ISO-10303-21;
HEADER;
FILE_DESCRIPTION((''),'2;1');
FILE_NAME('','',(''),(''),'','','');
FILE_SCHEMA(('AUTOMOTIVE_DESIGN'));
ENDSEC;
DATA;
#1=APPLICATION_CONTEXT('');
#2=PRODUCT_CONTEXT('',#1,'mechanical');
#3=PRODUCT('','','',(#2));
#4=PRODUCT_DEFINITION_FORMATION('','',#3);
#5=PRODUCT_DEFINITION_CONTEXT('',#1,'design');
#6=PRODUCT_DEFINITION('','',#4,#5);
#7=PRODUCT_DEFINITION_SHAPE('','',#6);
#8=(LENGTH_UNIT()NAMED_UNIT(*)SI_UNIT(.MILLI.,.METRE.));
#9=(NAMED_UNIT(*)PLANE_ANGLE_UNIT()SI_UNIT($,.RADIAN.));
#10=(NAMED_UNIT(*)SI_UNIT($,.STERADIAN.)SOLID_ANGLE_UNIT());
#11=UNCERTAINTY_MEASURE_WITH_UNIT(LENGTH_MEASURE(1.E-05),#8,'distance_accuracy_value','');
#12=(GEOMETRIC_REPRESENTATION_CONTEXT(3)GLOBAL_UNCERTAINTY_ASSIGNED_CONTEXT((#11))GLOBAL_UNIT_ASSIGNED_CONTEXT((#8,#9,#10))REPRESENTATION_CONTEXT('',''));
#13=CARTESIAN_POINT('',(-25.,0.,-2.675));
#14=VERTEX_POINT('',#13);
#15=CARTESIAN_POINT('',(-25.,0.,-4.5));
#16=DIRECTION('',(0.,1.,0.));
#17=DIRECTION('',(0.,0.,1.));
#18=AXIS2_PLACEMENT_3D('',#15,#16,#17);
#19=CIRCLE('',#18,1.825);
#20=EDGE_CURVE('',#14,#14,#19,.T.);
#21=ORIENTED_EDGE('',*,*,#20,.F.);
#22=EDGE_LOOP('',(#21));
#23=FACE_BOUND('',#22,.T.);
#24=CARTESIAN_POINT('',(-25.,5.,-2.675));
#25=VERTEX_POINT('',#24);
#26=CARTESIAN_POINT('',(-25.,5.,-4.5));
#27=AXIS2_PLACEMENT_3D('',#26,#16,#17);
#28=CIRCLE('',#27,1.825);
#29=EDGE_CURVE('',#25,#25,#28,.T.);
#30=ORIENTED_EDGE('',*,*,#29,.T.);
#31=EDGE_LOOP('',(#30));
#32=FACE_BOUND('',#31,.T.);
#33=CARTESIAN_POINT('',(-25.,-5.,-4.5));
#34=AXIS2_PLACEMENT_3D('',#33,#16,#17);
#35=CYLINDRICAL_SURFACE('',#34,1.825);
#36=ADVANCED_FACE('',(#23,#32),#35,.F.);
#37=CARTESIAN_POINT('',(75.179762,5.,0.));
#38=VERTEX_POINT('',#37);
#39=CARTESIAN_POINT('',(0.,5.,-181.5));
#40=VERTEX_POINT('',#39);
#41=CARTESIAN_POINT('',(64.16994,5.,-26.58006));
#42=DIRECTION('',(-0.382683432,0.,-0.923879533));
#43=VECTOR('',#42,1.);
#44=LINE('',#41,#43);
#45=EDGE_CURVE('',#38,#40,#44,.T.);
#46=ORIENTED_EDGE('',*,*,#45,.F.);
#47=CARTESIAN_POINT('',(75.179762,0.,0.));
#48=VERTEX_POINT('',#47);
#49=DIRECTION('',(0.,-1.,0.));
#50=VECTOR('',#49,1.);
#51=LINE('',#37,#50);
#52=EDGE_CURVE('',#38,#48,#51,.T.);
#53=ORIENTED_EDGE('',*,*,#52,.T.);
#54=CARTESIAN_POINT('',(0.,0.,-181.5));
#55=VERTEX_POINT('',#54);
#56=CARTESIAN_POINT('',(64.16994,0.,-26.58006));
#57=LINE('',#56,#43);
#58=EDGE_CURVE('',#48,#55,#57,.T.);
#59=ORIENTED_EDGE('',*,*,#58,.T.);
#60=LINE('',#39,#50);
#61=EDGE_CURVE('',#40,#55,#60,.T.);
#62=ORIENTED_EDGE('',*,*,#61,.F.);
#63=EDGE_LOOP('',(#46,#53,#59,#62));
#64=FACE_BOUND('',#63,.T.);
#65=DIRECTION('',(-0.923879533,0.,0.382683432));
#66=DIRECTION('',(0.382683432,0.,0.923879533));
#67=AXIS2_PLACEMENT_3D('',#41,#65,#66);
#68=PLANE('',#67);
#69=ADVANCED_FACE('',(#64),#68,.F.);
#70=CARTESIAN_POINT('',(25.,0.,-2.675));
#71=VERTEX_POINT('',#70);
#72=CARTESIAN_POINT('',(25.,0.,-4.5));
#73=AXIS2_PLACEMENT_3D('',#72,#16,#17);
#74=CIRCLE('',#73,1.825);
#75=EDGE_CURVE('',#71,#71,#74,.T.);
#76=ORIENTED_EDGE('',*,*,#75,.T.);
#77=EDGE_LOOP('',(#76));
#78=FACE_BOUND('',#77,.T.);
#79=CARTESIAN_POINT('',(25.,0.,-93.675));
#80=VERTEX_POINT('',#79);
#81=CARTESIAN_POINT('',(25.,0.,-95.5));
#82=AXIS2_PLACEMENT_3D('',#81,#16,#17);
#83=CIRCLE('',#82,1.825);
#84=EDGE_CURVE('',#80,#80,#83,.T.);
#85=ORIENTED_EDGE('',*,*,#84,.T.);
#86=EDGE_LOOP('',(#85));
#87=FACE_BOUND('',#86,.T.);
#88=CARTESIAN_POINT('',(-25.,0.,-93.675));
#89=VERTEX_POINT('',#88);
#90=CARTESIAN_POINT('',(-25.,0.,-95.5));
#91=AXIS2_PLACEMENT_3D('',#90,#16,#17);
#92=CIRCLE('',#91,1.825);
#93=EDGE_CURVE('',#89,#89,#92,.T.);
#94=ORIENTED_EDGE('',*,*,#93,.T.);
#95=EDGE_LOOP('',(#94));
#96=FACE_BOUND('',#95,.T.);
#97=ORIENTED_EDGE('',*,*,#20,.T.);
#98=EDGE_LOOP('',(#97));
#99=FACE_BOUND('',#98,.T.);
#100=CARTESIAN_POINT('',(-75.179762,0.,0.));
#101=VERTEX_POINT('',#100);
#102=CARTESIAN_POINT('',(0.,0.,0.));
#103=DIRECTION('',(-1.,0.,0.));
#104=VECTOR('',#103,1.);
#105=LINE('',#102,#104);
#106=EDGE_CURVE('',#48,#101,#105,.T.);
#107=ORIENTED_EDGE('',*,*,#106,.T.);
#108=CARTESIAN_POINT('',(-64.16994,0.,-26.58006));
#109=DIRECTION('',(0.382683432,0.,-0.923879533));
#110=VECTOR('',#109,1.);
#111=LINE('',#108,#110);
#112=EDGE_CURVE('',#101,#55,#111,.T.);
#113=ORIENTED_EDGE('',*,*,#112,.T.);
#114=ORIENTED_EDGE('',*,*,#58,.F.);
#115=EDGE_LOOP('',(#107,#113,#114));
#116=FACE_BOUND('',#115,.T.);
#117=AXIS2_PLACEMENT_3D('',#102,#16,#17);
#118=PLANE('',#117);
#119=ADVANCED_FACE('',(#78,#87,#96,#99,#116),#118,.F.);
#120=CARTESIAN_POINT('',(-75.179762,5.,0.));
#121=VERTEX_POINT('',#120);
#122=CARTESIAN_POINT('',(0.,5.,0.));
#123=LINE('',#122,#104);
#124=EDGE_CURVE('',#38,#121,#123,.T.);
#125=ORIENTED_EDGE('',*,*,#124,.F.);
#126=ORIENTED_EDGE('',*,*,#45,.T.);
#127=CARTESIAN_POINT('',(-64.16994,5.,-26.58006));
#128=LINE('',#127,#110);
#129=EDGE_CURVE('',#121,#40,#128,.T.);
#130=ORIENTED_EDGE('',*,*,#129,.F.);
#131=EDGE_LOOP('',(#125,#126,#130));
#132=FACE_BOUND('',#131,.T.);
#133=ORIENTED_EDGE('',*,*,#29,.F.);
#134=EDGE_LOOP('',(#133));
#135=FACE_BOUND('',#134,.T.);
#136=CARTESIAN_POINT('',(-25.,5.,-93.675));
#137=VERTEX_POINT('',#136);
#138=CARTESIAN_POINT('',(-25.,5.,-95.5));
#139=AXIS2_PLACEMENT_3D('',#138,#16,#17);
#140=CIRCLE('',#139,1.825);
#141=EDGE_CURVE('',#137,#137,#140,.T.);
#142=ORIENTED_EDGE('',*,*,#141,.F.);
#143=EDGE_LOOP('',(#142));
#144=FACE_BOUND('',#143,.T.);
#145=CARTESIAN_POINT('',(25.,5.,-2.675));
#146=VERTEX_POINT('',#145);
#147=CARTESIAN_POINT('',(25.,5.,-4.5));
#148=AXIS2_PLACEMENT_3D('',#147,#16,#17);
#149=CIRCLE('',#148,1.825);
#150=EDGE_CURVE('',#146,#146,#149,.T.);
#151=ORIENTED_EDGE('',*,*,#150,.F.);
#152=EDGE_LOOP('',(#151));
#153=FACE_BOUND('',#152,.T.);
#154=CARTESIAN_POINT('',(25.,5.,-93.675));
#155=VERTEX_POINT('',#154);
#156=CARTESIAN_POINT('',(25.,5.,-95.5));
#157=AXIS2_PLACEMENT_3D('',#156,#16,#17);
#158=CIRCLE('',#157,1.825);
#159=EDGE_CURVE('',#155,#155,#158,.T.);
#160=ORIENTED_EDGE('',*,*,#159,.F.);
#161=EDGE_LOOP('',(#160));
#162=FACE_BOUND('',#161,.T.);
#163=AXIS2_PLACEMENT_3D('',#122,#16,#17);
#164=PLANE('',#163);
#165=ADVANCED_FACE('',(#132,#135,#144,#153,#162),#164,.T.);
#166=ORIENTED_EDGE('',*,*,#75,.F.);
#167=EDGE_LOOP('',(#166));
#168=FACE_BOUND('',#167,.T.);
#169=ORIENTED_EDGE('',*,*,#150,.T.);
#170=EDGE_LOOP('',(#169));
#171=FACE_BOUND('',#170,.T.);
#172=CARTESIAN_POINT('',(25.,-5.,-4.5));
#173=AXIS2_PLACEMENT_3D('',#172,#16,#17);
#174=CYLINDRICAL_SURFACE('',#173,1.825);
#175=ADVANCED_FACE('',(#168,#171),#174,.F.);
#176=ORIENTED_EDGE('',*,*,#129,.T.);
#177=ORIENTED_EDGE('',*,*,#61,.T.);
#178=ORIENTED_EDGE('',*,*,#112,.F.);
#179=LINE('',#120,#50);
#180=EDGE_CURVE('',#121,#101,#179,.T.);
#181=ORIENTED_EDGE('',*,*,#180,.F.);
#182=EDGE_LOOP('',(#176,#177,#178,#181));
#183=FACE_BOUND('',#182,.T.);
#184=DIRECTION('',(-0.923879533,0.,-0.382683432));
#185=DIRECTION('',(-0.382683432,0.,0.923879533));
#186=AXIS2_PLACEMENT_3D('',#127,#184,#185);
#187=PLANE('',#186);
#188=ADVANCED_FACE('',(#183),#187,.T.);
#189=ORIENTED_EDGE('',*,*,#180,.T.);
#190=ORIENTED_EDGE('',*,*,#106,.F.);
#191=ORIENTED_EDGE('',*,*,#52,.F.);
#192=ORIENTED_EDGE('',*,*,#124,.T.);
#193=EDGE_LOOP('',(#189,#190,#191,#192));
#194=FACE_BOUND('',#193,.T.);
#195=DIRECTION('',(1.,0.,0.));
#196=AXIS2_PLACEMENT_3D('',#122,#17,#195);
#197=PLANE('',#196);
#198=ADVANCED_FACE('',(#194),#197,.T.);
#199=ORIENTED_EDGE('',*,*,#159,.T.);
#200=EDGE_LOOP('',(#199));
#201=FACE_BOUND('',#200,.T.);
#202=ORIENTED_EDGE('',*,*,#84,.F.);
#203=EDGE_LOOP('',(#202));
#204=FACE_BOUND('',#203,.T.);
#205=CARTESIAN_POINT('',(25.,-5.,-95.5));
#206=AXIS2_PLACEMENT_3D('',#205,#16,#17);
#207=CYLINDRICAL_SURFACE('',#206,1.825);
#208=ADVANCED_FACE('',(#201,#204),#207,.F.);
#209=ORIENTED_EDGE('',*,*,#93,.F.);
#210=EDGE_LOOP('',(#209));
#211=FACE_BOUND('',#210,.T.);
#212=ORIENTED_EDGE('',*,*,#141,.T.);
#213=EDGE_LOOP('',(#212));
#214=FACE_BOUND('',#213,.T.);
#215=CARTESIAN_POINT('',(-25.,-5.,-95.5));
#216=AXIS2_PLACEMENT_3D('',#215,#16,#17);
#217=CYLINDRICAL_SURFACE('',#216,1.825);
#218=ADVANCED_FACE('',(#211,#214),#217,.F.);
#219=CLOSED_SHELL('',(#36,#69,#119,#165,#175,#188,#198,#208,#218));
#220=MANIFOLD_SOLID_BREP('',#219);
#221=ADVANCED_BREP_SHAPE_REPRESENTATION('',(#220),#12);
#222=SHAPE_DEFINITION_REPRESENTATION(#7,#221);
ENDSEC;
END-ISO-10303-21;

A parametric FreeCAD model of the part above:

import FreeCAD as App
import Part
import Sketcher
Q = App.Units.Quantity

doc = App.newDocument("Part")
params = doc.addObject("Spreadsheet::Sheet", "Params")
for row, (alias, value) in enumerate([
    ("sketch1_diameter", "4 mm"),
    ("pad1_length", "5 mm"),
    ("pad2_length", "5 mm"),
    ("sketch3_diameter", "3.65 mm"),
    ("pocket1_length", "10 mm"),
], start=1):
    params.set(f"A{row}", alias)
    params.set(f"B{row}", "=" + value)
    params.setAlias(f"B{row}", alias)

body = doc.addObject("PartDesign::Body", "Body")

# Sketch on XZ plane
sketch1 = doc.addObject("Sketcher::SketchObject", "Sketch")
body.addObject(sketch1)
sketch1.AttachmentSupport = (doc.XZ_Plane, [""])
sketch1.MapMode = "FlatFace"
sketch1.addGeometry([
    Part.LineSegment(App.Vector(75.2, 0, 0), App.Vector(0, -181.5, 0)),  # 0
    Part.LineSegment(App.Vector(0, -181.5, 0), App.Vector(-75.2, 0, 0)),  # 1
    Part.LineSegment(App.Vector(-75.2, 0, 0), App.Vector(75.2, 0, 0)),  # 2
    Part.Circle(App.Vector(-27.7, -4.4, 0), App.Vector(0, 0, 1), 2),  # 3
    Part.Circle(App.Vector(27.7, -4.4, 0), App.Vector(0, 0, 1), 2),  # 4
    Part.Circle(App.Vector(-27.7, -95.6, 0), App.Vector(0, 0, 1), 2),  # 5
    Part.Circle(App.Vector(27.7, -95.6, 0), App.Vector(0, 0, 1), 2),  # 6
], False)
sketch1.addConstraint([
    Sketcher.Constraint("Coincident", 0, 2, 1, 1),
    Sketcher.Constraint("Coincident", 1, 2, 2, 1),
    Sketcher.Constraint("Coincident", 2, 2, 0, 1),
    Sketcher.Constraint("Horizontal", 2),
    Sketcher.Constraint("Equal", 3, 4),
    Sketcher.Constraint("Equal", 4, 5),
    Sketcher.Constraint("Equal", 5, 6),
    Sketcher.Constraint("Symmetric", 1, 2, 2, 2, -1, 1),
    Sketcher.Constraint("Symmetric", 3, 3, 4, 3, -2),
    Sketcher.Constraint("Symmetric", 5, 3, 6, 3, -2),
    Sketcher.Constraint("PointOnObject", 0, 2, -2),
    Sketcher.Constraint("Vertical", 3, 3, 5, 3),
    Sketcher.Constraint("Diameter", 3, 4.0),
    Sketcher.Constraint("Angle", 0, Q("-112.5 deg")),
    Sketcher.Constraint("DistanceY", 0, 2, -1, 1, 181.5),
    Sketcher.Constraint("DistanceX", 3, 3, -1, 1, 27.701844),
    Sketcher.Constraint("DistanceY", 3, 3, -1, 1, 4.378894),
    Sketcher.Constraint("DistanceY", 5, 3, -1, 1, 95.621106),
])
sketch1.setExpression("Constraints[12]", "Params.sketch1_diameter")
pad1 = doc.addObject("PartDesign::Pad", "Pad")
body.addObject(pad1)
pad1.Profile = sketch1
pad1.setExpression("Length", "Params.pad1_length")
pad1.Reversed = True

# Sketch on XZ plane
sketch2 = doc.addObject("Sketcher::SketchObject", "Sketch001")
body.addObject(sketch2)
sketch2.AttachmentSupport = (doc.XZ_Plane, [""])
sketch2.MapMode = "FlatFace"
sketch2.AttachmentOffset = App.Placement(App.Vector(0, 0, -5), App.Rotation())
sketch2.addGeometry([
    Part.LineSegment(App.Vector(-32, -99, 0), App.Vector(-32, -2, 0)),
    Part.LineSegment(App.Vector(-32, -2, 0), App.Vector(32, -2, 0)),
    Part.LineSegment(App.Vector(32, -2, 0), App.Vector(32, -99, 0)),
    Part.LineSegment(App.Vector(32, -99, 0), App.Vector(-32, -99, 0)),
], False)
sketch2.addConstraint([
    Sketcher.Constraint("Coincident", 0, 2, 1, 1),
    Sketcher.Constraint("Coincident", 1, 2, 2, 1),
    Sketcher.Constraint("Coincident", 2, 2, 3, 1),
    Sketcher.Constraint("Coincident", 3, 2, 0, 1),
    Sketcher.Constraint("Vertical", 0),
    Sketcher.Constraint("Horizontal", 1),
    Sketcher.Constraint("Vertical", 2),
    Sketcher.Constraint("Horizontal", 3),
    Sketcher.Constraint("DistanceX", 1, 1, 1, 2, 64.166552),
    Sketcher.Constraint("DistanceY", 0, 1, 0, 2, 97.438098),
    Sketcher.Constraint("DistanceX", 0, 2, -1, 1, 32.475919),
    Sketcher.Constraint("DistanceY", 0, 2, -1, 1, 2.004306),
])
pad2 = doc.addObject("PartDesign::Pad", "Pad001")
body.addObject(pad2)
pad2.Profile = sketch2
pad2.setExpression("Length", "Params.pad2_length")

# Sketch on XZ plane
sketch3 = doc.addObject("Sketcher::SketchObject", "Sketch002")
body.addObject(sketch3)
sketch3.AttachmentSupport = (doc.XZ_Plane, [""])
sketch3.MapMode = "FlatFace"
sketch3.AttachmentOffset = App.Placement(App.Vector(0, 0, -5), App.Rotation())
sketch3.addGeometry([
    Part.Circle(App.Vector(-25, -4.5, 0), App.Vector(0, 0, 1), 1.8),
    Part.Circle(App.Vector(25, -4.5, 0), App.Vector(0, 0, 1), 1.8),
    Part.Circle(App.Vector(25, -95.5, 0), App.Vector(0, 0, 1), 1.8),
    Part.Circle(App.Vector(-25, -95.5, 0), App.Vector(0, 0, 1), 1.8),
], False)
sketch3.addConstraint([
    Sketcher.Constraint("Equal", 0, 1),
    Sketcher.Constraint("Equal", 1, 2),
    Sketcher.Constraint("Equal", 2, 3),
    Sketcher.Constraint("Symmetric", 0, 3, 1, 3, -2),
    Sketcher.Constraint("Symmetric", 2, 3, 3, 3, -2),
    Sketcher.Constraint("Vertical", 1, 3, 2, 3),
    Sketcher.Constraint("Diameter", 0, 3.65),
    Sketcher.Constraint("DistanceX", 0, 3, -1, 1, 25.0),
    Sketcher.Constraint("DistanceY", 2, 3, 1, 3, 91.0),
    Sketcher.Constraint("DistanceY", 0, 3, -1, 1, 4.5),
])
sketch3.setExpression("Constraints[6]", "Params.sketch3_diameter")
pocket1 = doc.addObject("PartDesign::Pocket", "Pocket")
body.addObject(pocket1)
pocket1.Profile = sketch3
pocket1.setExpression("Length", "Params.pocket1_length")
pocket1.Reversed = True

doc.recompute()
